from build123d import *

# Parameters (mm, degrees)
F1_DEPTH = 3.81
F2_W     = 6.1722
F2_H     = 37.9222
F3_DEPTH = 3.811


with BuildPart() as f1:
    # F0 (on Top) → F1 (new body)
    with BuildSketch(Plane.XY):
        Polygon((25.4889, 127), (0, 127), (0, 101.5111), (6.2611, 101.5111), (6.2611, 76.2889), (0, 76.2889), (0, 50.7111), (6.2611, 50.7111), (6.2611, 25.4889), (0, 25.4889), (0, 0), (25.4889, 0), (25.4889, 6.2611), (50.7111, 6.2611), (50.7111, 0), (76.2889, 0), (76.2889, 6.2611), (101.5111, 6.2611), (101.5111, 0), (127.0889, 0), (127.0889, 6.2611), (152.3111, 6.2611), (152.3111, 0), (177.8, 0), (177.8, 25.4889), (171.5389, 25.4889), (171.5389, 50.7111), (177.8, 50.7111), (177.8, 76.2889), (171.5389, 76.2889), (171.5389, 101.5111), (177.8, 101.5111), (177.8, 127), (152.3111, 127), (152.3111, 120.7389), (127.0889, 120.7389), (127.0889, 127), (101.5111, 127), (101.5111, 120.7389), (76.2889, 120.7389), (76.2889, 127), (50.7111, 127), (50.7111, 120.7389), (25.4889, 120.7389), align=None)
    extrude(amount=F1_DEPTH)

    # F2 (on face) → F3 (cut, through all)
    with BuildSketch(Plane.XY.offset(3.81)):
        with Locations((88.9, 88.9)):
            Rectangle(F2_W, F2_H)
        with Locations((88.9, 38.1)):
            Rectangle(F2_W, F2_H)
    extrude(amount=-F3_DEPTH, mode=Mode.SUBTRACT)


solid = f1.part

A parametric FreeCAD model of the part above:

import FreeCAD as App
import Part
import Sketcher
Q = App.Units.Quantity

doc = App.newDocument("Part")
body = doc.addObject("PartDesign::Body", "Body")

sketch1 = body.newObject("Sketcher::SketchObject", "Sketch")
sketch1.AttachmentSupport = (doc.getObject("XY_Plane"), [""])
sketch1.MapMode = "FlatFace"
sketch1.addGeometry(Part.LineSegment(App.Vector(25.4889, 127, 0), App.Vector(0, 127, 0)), False)
sketch1.addGeometry(Part.LineSegment(App.Vector(0, 127, 0), App.Vector(0, 101.5111, 0)), False)
sketch1.addGeometry(Part.LineSegment(App.Vector(0, 101.5111, 0), App.Vector(6.2611, 101.5111, 0)), False)
sketch1.addGeometry(Part.LineSegment(App.Vector(6.2611, 101.5111, 0), App.Vector(6.2611, 76.2889, 0)), False)
sketch1.addGeometry(Part.LineSegment(App.Vector(6.2611, 76.2889, 0), App.Vector(0, 76.2889, 0)), False)
sketch1.addGeometry(Part.LineSegment(App.Vector(0, 76.2889, 0), App.Vector(0, 50.7111, 0)), False)
sketch1.addGeometry(Part.LineSegment(App.Vector(0, 50.7111, 0), App.Vector(6.2611, 50.7111, 0)), False)
sketch1.addGeometry(Part.LineSegment(App.Vector(6.2611, 50.7111, 0), App.Vector(6.2611, 25.4889, 0)), False)
sketch1.addGeometry(Part.LineSegment(App.Vector(6.2611, 25.4889, 0), App.Vector(0, 25.4889, 0)), False)
sketch1.addGeometry(Part.LineSegment(App.Vector(0, 25.4889, 0), App.Vector(0, 0, 0)), False)
sketch1.addGeometry(Part.LineSegment(App.Vector(0, 0, 0), App.Vector(25.4889, 0, 0)), False)
sketch1.addGeometry(Part.LineSegment(App.Vector(25.4889, 0, 0), App.Vector(25.4889, 6.2611, 0)), False)
sketch1.addGeometry(Part.LineSegment(App.Vector(25.4889, 6.2611, 0), App.Vector(50.7111, 6.2611, 0)), False)
sketch1.addGeometry(Part.LineSegment(App.Vector(50.7111, 6.2611, 0), App.Vector(50.7111, 0, 0)), False)
sketch1.addGeometry(Part.LineSegment(App.Vector(50.7111, 0, 0), App.Vector(76.2889, 0, 0)), False)
sketch1.addGeometry(Part.LineSegment(App.Vector(76.2889, 0, 0), App.Vector(76.2889, 6.2611, 0)), False)
sketch1.addGeometry(Part.LineSegment(App.Vector(76.2889, 6.2611, 0), App.Vector(101.5111, 6.2611, 0)), False)
sketch1.addGeometry(Part.LineSegment(App.Vector(101.5111, 6.2611, 0), App.Vector(101.5111, 0, 0)), False)
sketch1.addGeometry(Part.LineSegment(App.Vector(101.5111, 0, 0), App.Vector(127.0889, 0, 0)), False)
sketch1.addGeometry(Part.LineSegment(App.Vector(127.0889, 0, 0), App.Vector(127.0889, 6.2611, 0)), False)
sketch1.addGeometry(Part.LineSegment(App.Vector(127.0889, 6.2611, 0), App.Vector(152.3111, 6.2611, 0)), False)
sketch1.addGeometry(Part.LineSegment(App.Vector(152.3111, 6.2611, 0), App.Vector(152.3111, 0, 0)), False)
sketch1.addGeometry(Part.LineSegment(App.Vector(152.3111, 0, 0), App.Vector(177.8, 0, 0)), False)
sketch1.addGeometry(Part.LineSegment(App.Vector(177.8, 0, 0), App.Vector(177.8, 25.4889, 0)), False)
sketch1.addGeometry(Part.LineSegment(App.Vector(177.8, 25.4889, 0), App.Vector(171.5389, 25.4889, 0)), False)
sketch1.addGeometry(Part.LineSegment(App.Vector(171.5389, 25.4889, 0), App.Vector(171.5389, 50.7111, 0)), False)
sketch1.addGeometry(Part.LineSegment(App.Vector(171.5389, 50.7111, 0), App.Vector(177.8, 50.7111, 0)), False)
sketch1.addGeometry(Part.LineSegment(App.Vector(177.8, 50.7111, 0), App.Vector(177.8, 76.2889, 0)), False)
sketch1.addGeometry(Part.LineSegment(App.Vector(177.8, 76.2889, 0), App.Vector(171.5389, 76.2889, 0)), False)
sketch1.addGeometry(Part.LineSegment(App.Vector(171.5389, 76.2889, 0), App.Vector(171.5389, 101.5111, 0)), False)
sketch1.addGeometry(Part.LineSegment(App.Vector(171.5389, 101.5111, 0), App.Vector(177.8, 101.5111, 0)), False)
sketch1.addGeometry(Part.LineSegment(App.Vector(177.8, 101.5111, 0), App.Vector(177.8, 127, 0)), False)
sketch1.addGeometry(Part.LineSegment(App.Vector(177.8, 127, 0), App.Vector(152.3111, 127, 0)), False)
sketch1.addGeometry(Part.LineSegment(App.Vector(152.3111, 127, 0), App.Vector(152.3111, 120.7389, 0)), False)
sketch1.addGeometry(Part.LineSegment(App.Vector(152.3111, 120.7389, 0), App.Vector(127.0889, 120.7389, 0)), False)
sketch1.addGeometry(Part.LineSegment(App.Vector(127.0889, 120.7389, 0), App.Vector(127.0889, 127, 0)), False)
sketch1.addGeometry(Part.LineSegment(App.Vector(127.0889, 127, 0), App.Vector(101.5111, 127, 0)), False)
sketch1.addGeometry(Part.LineSegment(App.Vector(101.5111, 127, 0), App.Vector(101.5111, 120.7389, 0)), False)
sketch1.addGeometry(Part.LineSegment(App.Vector(101.5111, 120.7389, 0), App.Vector(76.2889, 120.7389, 0)), False)
sketch1.addGeometry(Part.LineSegment(App.Vector(76.2889, 120.7389, 0), App.Vector(76.2889, 127, 0)), False)
sketch1.addGeometry(Part.LineSegment(App.Vector(76.2889, 127, 0), App.Vector(50.7111, 127, 0)), False)
sketch1.addGeometry(Part.LineSegment(App.Vector(50.7111, 127, 0), App.Vector(50.7111, 120.7389, 0)), False)
sketch1.addGeometry(Part.LineSegment(App.Vector(50.7111, 120.7389, 0), App.Vector(25.4889, 120.7389, 0)), False)
sketch1.addGeometry(Part.LineSegment(App.Vector(25.4889, 120.7389, 0), App.Vector(25.4889, 127, 0)), False)
sketch1.addConstraint(Sketcher.Constraint("Coincident", 0, 2, 1, 1))
sketch1.addConstraint(Sketcher.Constraint("Coincident", 1, 2, 2, 1))
sketch1.addConstraint(Sketcher.Constraint("Coincident", 2, 2, 3, 1))
sketch1.addConstraint(Sketcher.Constraint("Coincident", 3, 2, 4, 1))
sketch1.addConstraint(Sketcher.Constraint("Coincident", 4, 2, 5, 1))
sketch1.addConstraint(Sketcher.Constraint("Coincident", 5, 2, 6, 1))
sketch1.addConstraint(Sketcher.Constraint("Coincident", 6, 2, 7, 1))
sketch1.addConstraint(Sketcher.Constraint("Coincident", 7, 2, 8, 1))
sketch1.addConstraint(Sketcher.Constraint("Coincident", 8, 2, 9, 1))
sketch1.addConstraint(Sketcher.Constraint("Coincident", 9, 2, 10, 1))
sketch1.addConstraint(Sketcher.Constraint("Coincident", 10, 2, 11, 1))
sketch1.addConstraint(Sketcher.Constraint("Coincident", 11, 2, 12, 1))
sketch1.addConstraint(Sketcher.Constraint("Coincident", 12, 2, 13, 1))
sketch1.addConstraint(Sketcher.Constraint("Coincident", 13, 2, 14, 1))
sketch1.addConstraint(Sketcher.Constraint("Coincident", 14, 2, 15, 1))
sketch1.addConstraint(Sketcher.Constraint("Coincident", 15, 2, 16, 1))
sketch1.addConstraint(Sketcher.Constraint("Coincident", 16, 2, 17, 1))
sketch1.addConstraint(Sketcher.Constraint("Coincident", 17, 2, 18, 1))
sketch1.addConstraint(Sketcher.Constraint("Coincident", 18, 2, 19, 1))
sketch1.addConstraint(Sketcher.Constraint("Coincident", 19, 2, 20, 1))
sketch1.addConstraint(Sketcher.Constraint("Coincident", 20, 2, 21, 1))
sketch1.addConstraint(Sketcher.Constraint("Coincident", 21, 2, 22, 1))
sketch1.addConstraint(Sketcher.Constraint("Coincident", 22, 2, 23, 1))
sketch1.addConstraint(Sketcher.Constraint("Coincident", 23, 2, 24, 1))
sketch1.addConstraint(Sketcher.Constraint("Coincident", 24, 2, 25, 1))
sketch1.addConstraint(Sketcher.Constraint("Coincident", 25, 2, 26, 1))
sketch1.addConstraint(Sketcher.Constraint("Coincident", 26, 2, 27, 1))
sketch1.addConstraint(Sketcher.Constraint("Coincident", 27, 2, 28, 1))
sketch1.addConstraint(Sketcher.Constraint("Coincident", 28, 2, 29, 1))
sketch1.addConstraint(Sketcher.Constraint("Coincident", 29, 2, 30, 1))
sketch1.addConstraint(Sketcher.Constraint("Coincident", 30, 2, 31, 1))
sketch1.addConstraint(Sketcher.Constraint("Coincident", 31, 2, 32, 1))
sketch1.addConstraint(Sketcher.Constraint("Coincident", 32, 2, 33, 1))
sketch1.addConstraint(Sketcher.Constraint("Coincident", 33, 2, 34, 1))
sketch1.addConstraint(Sketcher.Constraint("Coincident", 34, 2, 35, 1))
sketch1.addConstraint(Sketcher.Constraint("Coincident", 35, 2, 36, 1))
sketch1.addConstraint(Sketcher.Constraint("Coincident", 36, 2, 37, 1))
sketch1.addConstraint(Sketcher.Constraint("Coincident", 37, 2, 38, 1))
sketch1.addConstraint(Sketcher.Constraint("Coincident", 38, 2, 39, 1))
sketch1.addConstraint(Sketcher.Constraint("Coincident", 39, 2, 40, 1))
sketch1.addConstraint(Sketcher.Constraint("Coincident", 40, 2, 41, 1))
sketch1.addConstraint(Sketcher.Constraint("Coincident", 41, 2, 42, 1))
sketch1.addConstraint(Sketcher.Constraint("Coincident", 42, 2, 43, 1))
sketch1.addConstraint(Sketcher.Constraint("Coincident", 43, 2, 0, 1))
sketch1.addConstraint(Sketcher.Constraint("Horizontal", 0))
sketch1.addConstraint(Sketcher.Constraint("Vertical", 1))
sketch1.addConstraint(Sketcher.Constraint("Horizontal", 2))
sketch1.addConstraint(Sketcher.Constraint("Vertical", 3))
sketch1.addConstraint(Sketcher.Constraint("Horizontal", 4))
sketch1.addConstraint(Sketcher.Constraint("Vertical", 5))
sketch1.addConstraint(Sketcher.Constraint("Horizontal", 6))
sketch1.addConstraint(Sketcher.Constraint("Vertical", 7))
sketch1.addConstraint(Sketcher.Constraint("Horizontal", 8))
sketch1.addConstraint(Sketcher.Constraint("Vertical", 9))
sketch1.addConstraint(Sketcher.Constraint("Horizontal", 10))
sketch1.addConstraint(Sketcher.Constraint("Vertical", 11))
sketch1.addConstraint(Sketcher.Constraint("Horizontal", 12))
sketch1.addConstraint(Sketcher.Constraint("Vertical", 13))
sketch1.addConstraint(Sketcher.Constraint("Horizontal", 14))
sketch1.addConstraint(Sketcher.Constraint("Vertical", 15))
sketch1.addConstraint(Sketcher.Constraint("Horizontal", 16))
sketch1.addConstraint(Sketcher.Constraint("Vertical", 17))
sketch1.addConstraint(Sketcher.Constraint("Horizontal", 18))
sketch1.addConstraint(Sketcher.Constraint("Vertical", 19))
sketch1.addConstraint(Sketcher.Constraint("Horizontal", 20))
sketch1.addConstraint(Sketcher.Constraint("Vertical", 21))
sketch1.addConstraint(Sketcher.Constraint("Horizontal", 22))
sketch1.addConstraint(Sketcher.Constraint("Vertical", 23))
sketch1.addConstraint(Sketcher.Constraint("Horizontal", 24))
sketch1.addConstraint(Sketcher.Constraint("Vertical", 25))
sketch1.addConstraint(Sketcher.Constraint("Horizontal", 26))
sketch1.addConstraint(Sketcher.Constraint("Vertical", 27))
sketch1.addConstraint(Sketcher.Constraint("Horizontal", 28))
sketch1.addConstraint(Sketcher.Constraint("Vertical", 29))
sketch1.addConstraint(Sketcher.Constraint("Horizontal", 30))
sketch1.addConstraint(Sketcher.Constraint("Vertical", 31))
sketch1.addConstraint(Sketcher.Constraint("Horizontal", 32))
sketch1.addConstraint(Sketcher.Constraint("Vertical", 33))
sketch1.addConstraint(Sketcher.Constraint("Horizontal", 34))
sketch1.addConstraint(Sketcher.Constraint("Vertical", 35))
sketch1.addConstraint(Sketcher.Constraint("Horizontal", 36))
sketch1.addConstraint(Sketcher.Constraint("Vertical", 37))
sketch1.addConstraint(Sketcher.Constraint("Horizontal", 38))
sketch1.addConstraint(Sketcher.Constraint("Vertical", 39))
sketch1.addConstraint(Sketcher.Constraint("Horizontal", 40))
sketch1.addConstraint(Sketcher.Constraint("Vertical", 41))
sketch1.addConstraint(Sketcher.Constraint("Horizontal", 42))
sketch1.addConstraint(Sketcher.Constraint("Vertical", 43))
sketch1.addConstraint(Sketcher.Constraint("Coincident", 9, 2, -1, 1))
sketch1.addConstraint(Sketcher.Constraint("PointOnObject", 0, 2, -2))
sketch1.addConstraint(Sketcher.Constraint("PointOnObject", 4, 2, -2))
sketch1.addConstraint(Sketcher.Constraint("PointOnObject", 13, 2, -1))
sketch1.addConstraint(Sketcher.Constraint("PointOnObject", 17, 2, -1))
sketch1.addConstraint(Sketcher.Constraint("PointOnObject", 21, 2, -1))
sketch1.addConstraint(Sketcher.Constraint("Horizontal", 12, 2, 15, 2))
sketch1.addConstraint(Sketcher.Constraint("Horizontal", 16, 2, 19, 2))
sketch1.addConstraint(Sketcher.Constraint("Horizontal", 8, 2, 23, 2))
sketch1.addConstraint(Sketcher.Constraint("Horizontal", 6, 2, 25, 2))
sketch1.addConstraint(Sketcher.Constraint("Horizontal", 4, 2, 27, 2))
sketch1.addConstraint(Sketcher.Constraint("Horizontal", 2, 2, 29, 2))
sketch1.addConstraint(Sketcher.Constraint("Horizontal", 0, 2, 31, 2))
sketch1.addConstraint(Sketcher.Constraint("Horizontal", 32, 2, 35, 2))
sketch1.addConstraint(Sketcher.Constraint("Horizontal", 34, 2, 37, 2))
sketch1.addConstraint(Sketcher.Constraint("Horizontal", 36, 2, 39, 2))
sketch1.addConstraint(Sketcher.Constraint("Horizontal", 38, 2, 41, 2))
sketch1.addConstraint(Sketcher.Constraint("Vertical", 3, 2, 6, 2))
sketch1.addConstraint(Sketcher.Constraint("Vertical", 23, 2, 26, 2))
sketch1.addConstraint(Sketcher.Constraint("Vertical", 25, 2, 28, 2))
sketch1.addConstraint(Sketcher.Constraint("Vertical", 27, 2, 30, 2))
sketch1.addConstraint(Sketcher.Constraint("Vertical", 21, 2, 32, 2))
sketch1.addConstraint(Sketcher.Constraint("Vertical", 19, 2, 34, 2))
sketch1.addConstraint(Sketcher.Constraint("Vertical", 17, 2, 36, 2))
sketch1.addConstraint(Sketcher.Constraint("Vertical", 15, 2, 38, 2))
sketch1.addConstraint(Sketcher.Constraint("Vertical", 13, 2, 40, 2))
sketch1.addConstraint(Sketcher.Constraint("Vertical", 11, 2, 42, 2))
sketch1.addConstraint(Sketcher.Constraint("Equal", 12, 16))
sketch1.addConstraint(Sketcher.Constraint("Equal", 14, 18))
sketch1.addConstraint(Sketcher.Constraint("Equal", 16, 20))
sketch1.addConstraint(Sketcher.Constraint("Equal", 10, 22))
sketch1.addConstraint(Sketcher.Constraint("Equal", 8, 24))
sketch1.addConstraint(Sketcher.Constraint("Equal", 32, 1))
sketch1.addConstraint(Sketcher.Constraint("Equal", 42, 3))
sketch1.addConstraint(Sketcher.Constraint("Equal", 40, 5))
sketch1.addConstraint(Sketcher.Constraint("Equal", 3, 7))
sketch1.addConstraint(Sketcher.Constraint("Equal", 1, 9))
sketch1.addConstraint(Sketcher.Constraint("Equal", 30, 11))
sketch1.addConstraint(Sketcher.Constraint("Equal", 21, 33))
sketch1.addConstraint(Sketcher.Constraint("DistanceY", -1, 1, 0, 2, Q("5 in")))
sketch1.addConstraint(Sketcher.Constraint("DistanceX", -1, 1, 22, 2, Q("7 in")))
sketch1.addConstraint(Sketcher.Constraint("DistanceX", 12, 1, 12, 2, Q("0.993 in")))
sketch1.addConstraint(Sketcher.Constraint("DistanceY", 11, 2, 6, 2, Q("1.75 in")))
pad1 = body.newObject("PartDesign::Pad", "Pad")
pad1.Profile = sketch1
pad1.Length = Q("0.15 in")

sketch2 = body.newObject("Sketcher::SketchObject", "Sketch001")
sketch2.AttachmentSupport = (doc.getObject("XY_Plane"), [""])
sketch2.MapMode = "FlatFace"
sketch2.AttachmentOffset = App.Placement(App.Vector(0, 0, 0.15 * 25.4), App.Rotation())
sketch2.addGeometry(Part.LineSegment(App.Vector(85.8139, 107.8611, 0), App.Vector(85.8139, 69.9389, 0)), False)
sketch2.addGeometry(Part.LineSegment(App.Vector(85.8139, 69.9389, 0), App.Vector(91.9861, 69.9389, 0)), False)
sketch2.addGeometry(Part.LineSegment(App.Vector(91.9861, 69.9389, 0), App.Vector(91.9861, 107.8611, 0)), False)
sketch2.addGeometry(Part.LineSegment(App.Vector(91.9861, 107.8611, 0), App.Vector(85.8139, 107.8611, 0)), False)
sketch2.addGeometry(Part.LineSegment(App.Vector(85.8139, 57.0611, 0), App.Vector(85.8139, 19.1389, 0)), False)
sketch2.addGeometry(Part.LineSegment(App.Vector(85.8139, 19.1389, 0), App.Vector(91.9861, 19.1389, 0)), False)
sketch2.addGeometry(Part.LineSegment(App.Vector(91.9861, 19.1389, 0), App.Vector(91.9861, 57.0611, 0)), False)
sketch2.addGeometry(Part.LineSegment(App.Vector(91.9861, 57.0611, 0), App.Vector(85.8139, 57.0611, 0)), False)
sketch2.addConstraint(Sketcher.Constraint("Coincident", 0, 2, 1, 1))
sketch2.addConstraint(Sketcher.Constraint("Coincident", 1, 2, 2, 1))
sketch2.addConstraint(Sketcher.Constraint("Coincident", 2, 2, 3, 1))
sketch2.addConstraint(Sketcher.Constraint("Coincident", 3, 2, 0, 1))
sketch2.addConstraint(Sketcher.Constraint("Coincident", 4, 2, 5, 1))
sketch2.addConstraint(Sketcher.Constraint("Coincident", 5, 2, 6, 1))
sketch2.addConstraint(Sketcher.Constraint("Coincident", 6, 2, 7, 1))
sketch2.addConstraint(Sketcher.Constraint("Coincident", 7, 2, 4, 1))
sketch2.addConstraint(Sketcher.Constraint("Vertical", 0))
sketch2.addConstraint(Sketcher.Constraint("Horizontal", 1))
sketch2.addConstraint(Sketcher.Constraint("Vertical", 2))
sketch2.addConstraint(Sketcher.Constraint("Horizontal", 3))
sketch2.addConstraint(Sketcher.Constraint("Vertical", 4))
sketch2.addConstraint(Sketcher.Constraint("Horizontal", 5))
sketch2.addConstraint(Sketcher.Constraint("Vertical", 6))
sketch2.addConstraint(Sketcher.Constraint("Horizontal", 7))
sketch2.addConstraint(Sketcher.Constraint("Vertical", 3, 2, 4, 2))
sketch2.addConstraint(Sketcher.Constraint("Vertical", 2, 2, 5, 2))
sketch2.addConstraint(Sketcher.Constraint("Equal", 2, 4))
sketch2.addConstraint(Sketcher.Constraint("DistanceY", 4, 2, 0, 2, Q("2 in")))
sketch2.addConstraint(Sketcher.Constraint("DistanceX", 1, 1, 1, 2, Q("0.243 in")))
sketch2.addConstraint(Sketcher.Constraint("DistanceY", 0, 2, 0, 1, Q("1.493 in")))
sketch2.addConstraint(Sketcher.Constraint("DistanceX", -1, 1, 0, 2, Q("3.3785 in")))
sketch2.addConstraint(Sketcher.Constraint("DistanceY", -1, 1, 0, 2, Q("2.7535 in")))
pocket1 = body.newObject("PartDesign::Pocket", "Pocket")
pocket1.Profile = sketch2
pocket1.Type = "ThroughAll"

doc.recompute()
